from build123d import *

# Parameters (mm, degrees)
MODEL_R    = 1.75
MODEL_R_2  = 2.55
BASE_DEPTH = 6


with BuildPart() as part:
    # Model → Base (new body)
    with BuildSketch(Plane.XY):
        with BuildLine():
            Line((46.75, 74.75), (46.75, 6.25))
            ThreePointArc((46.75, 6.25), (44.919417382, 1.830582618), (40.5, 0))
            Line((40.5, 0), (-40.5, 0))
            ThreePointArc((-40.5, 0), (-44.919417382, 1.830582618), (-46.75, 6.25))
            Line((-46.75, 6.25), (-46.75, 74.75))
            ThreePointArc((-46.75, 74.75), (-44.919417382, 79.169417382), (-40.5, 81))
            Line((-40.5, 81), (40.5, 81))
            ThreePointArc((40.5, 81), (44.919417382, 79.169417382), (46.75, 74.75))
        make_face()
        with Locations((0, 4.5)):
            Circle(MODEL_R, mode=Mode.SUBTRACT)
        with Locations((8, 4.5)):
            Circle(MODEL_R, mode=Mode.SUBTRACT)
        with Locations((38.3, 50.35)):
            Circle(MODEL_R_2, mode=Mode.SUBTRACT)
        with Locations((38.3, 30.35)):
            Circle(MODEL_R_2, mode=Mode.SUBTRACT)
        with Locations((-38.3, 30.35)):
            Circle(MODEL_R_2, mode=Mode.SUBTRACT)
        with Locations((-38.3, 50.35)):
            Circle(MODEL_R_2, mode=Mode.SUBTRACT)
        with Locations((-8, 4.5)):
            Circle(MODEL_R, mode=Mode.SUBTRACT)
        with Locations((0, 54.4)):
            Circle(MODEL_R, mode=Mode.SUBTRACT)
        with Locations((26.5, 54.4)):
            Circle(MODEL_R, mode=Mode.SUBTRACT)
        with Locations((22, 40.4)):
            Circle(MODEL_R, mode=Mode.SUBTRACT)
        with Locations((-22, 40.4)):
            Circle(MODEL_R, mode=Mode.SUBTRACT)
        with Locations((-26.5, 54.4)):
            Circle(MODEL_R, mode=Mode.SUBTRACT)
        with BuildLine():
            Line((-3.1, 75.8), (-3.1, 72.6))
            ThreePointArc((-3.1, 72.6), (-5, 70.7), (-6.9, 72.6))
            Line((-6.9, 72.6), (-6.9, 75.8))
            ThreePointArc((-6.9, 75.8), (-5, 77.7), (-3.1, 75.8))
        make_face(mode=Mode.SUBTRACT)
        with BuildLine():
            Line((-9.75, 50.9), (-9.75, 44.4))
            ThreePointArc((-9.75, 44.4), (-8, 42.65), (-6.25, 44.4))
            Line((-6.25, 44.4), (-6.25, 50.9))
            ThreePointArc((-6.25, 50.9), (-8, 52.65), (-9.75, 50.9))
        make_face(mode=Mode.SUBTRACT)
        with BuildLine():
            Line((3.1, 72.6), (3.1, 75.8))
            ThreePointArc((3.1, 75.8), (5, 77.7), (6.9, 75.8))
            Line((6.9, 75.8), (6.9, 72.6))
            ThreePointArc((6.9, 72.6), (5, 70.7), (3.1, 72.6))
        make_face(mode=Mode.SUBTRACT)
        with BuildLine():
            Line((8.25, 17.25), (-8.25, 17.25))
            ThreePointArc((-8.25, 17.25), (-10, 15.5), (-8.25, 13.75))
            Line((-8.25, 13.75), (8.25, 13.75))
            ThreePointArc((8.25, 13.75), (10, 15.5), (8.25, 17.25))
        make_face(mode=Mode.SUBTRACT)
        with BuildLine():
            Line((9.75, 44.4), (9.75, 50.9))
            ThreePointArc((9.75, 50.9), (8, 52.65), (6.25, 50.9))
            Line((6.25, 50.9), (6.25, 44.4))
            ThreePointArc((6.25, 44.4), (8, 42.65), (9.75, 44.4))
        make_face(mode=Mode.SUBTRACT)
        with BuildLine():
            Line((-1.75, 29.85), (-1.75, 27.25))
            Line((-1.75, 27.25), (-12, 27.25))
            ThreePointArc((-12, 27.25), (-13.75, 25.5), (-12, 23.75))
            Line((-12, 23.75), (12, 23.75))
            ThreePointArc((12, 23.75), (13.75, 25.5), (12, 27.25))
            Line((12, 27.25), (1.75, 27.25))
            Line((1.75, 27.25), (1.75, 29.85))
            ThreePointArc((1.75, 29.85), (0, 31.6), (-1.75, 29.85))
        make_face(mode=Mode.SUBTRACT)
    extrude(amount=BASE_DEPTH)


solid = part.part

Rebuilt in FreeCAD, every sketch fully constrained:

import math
import FreeCAD as App
import Part
import Sketcher
Q = App.Units.Quantity

doc = App.newDocument("Part")
body = doc.addObject("PartDesign::Body", "Body")

# Sketch on XY plane
sketch1 = body.newObject("Sketcher::SketchObject", "Sketch")
sketch1.AttachmentSupport = (doc.getObject("XY_Plane"), [""])
sketch1.MapMode = "FlatFace"
sketch1.addGeometry([
    Part.LineSegment(App.Vector(46.8, 6.2, 0), App.Vector(46.8, 74.8, 0)),  # 0
    Part.ArcOfCircle(Part.Circle(App.Vector(40.5, 74.7, 0), App.Vector(0, 0, 1), 6.3), math.radians(0), math.radians(90)),  # 1
    Part.LineSegment(App.Vector(40.5, 81, 0), App.Vector(-40.5, 81, 0)),  # 2
    Part.ArcOfCircle(Part.Circle(App.Vector(-40.5, 74.7, 0), App.Vector(0, 0, 1), 6.3), math.radians(90), math.radians(180)),  # 3
    Part.LineSegment(App.Vector(-46.8, 74.8, 0), App.Vector(-46.8, 6.2, 0)),  # 4
    Part.ArcOfCircle(Part.Circle(App.Vector(-40.5, 6.3, 0), App.Vector(0, 0, 1), 6.3), math.radians(-180), math.radians(-90)),  # 5
    Part.LineSegment(App.Vector(-40.5, 0, 0), App.Vector(40.5, 0, 0)),  # 6
    Part.ArcOfCircle(Part.Circle(App.Vector(40.5, 6.3, 0), App.Vector(0, 0, 1), 6.3), math.radians(-90), math.radians(0)),  # 7
    Part.Circle(App.Vector(8, 4.5, 0), App.Vector(0, 0, 1), 1.8),  # 8
    Part.Circle(App.Vector(38.3, 30.4, 0), App.Vector(0, 0, 1), 2.5),  # 9
    Part.Circle(App.Vector(0, 4.5, 0), App.Vector(0, 0, 1), 1.8),  # 10
    Part.Circle(App.Vector(-8, 4.5, 0), App.Vector(0, 0, 1), 1.8),  # 11
    Part.ArcOfCircle(Part.Circle(App.Vector(8.2, 15.5, 0), App.Vector(0, 0, 1), 1.8), math.radians(-90), math.radians(90)),  # 12
    Part.LineSegment(App.Vector(8.2, 13.8, 0), App.Vector(-8.2, 13.8, 0)),  # 13
    Part.ArcOfCircle(Part.Circle(App.Vector(-8.2, 15.5, 0), App.Vector(0, 0, 1), 1.8), math.radians(90), math.radians(270)),  # 14
    Part.LineSegment(App.Vector(-8.2, 17.2, 0), App.Vector(8.2, 17.2, 0)),  # 15
    Part.ArcOfCircle(Part.Circle(App.Vector(0, 29.9, 0), App.Vector(0, 0, 1), 1.8), math.radians(0), math.radians(180)),  # 16
    Part.LineSegment(App.Vector(1.8, 29.9, 0), App.Vector(1.8, 27.2, 0)),  # 17
    Part.LineSegment(App.Vector(1.8, 27.2, 0), App.Vector(12, 27.2, 0)),  # 18
    Part.ArcOfCircle(Part.Circle(App.Vector(12, 25.5, 0), App.Vector(0, 0, 1), 1.8), math.radians(-90), math.radians(90)),  # 19
    Part.LineSegment(App.Vector(12, 23.8, 0), App.Vector(-12, 23.8, 0)),  # 20
    Part.ArcOfCircle(Part.Circle(App.Vector(-12, 25.5, 0), App.Vector(0, 0, 1), 1.8), math.radians(90), math.radians(270)),  # 21
    Part.LineSegment(App.Vector(-12, 27.2, 0), App.Vector(-1.8, 27.2, 0)),  # 22
    Part.LineSegment(App.Vector(-1.8, 27.2, 0), App.Vector(-1.8, 29.9, 0)),  # 23
    Part.Circle(App.Vector(-38.3, 30.4, 0), App.Vector(0, 0, 1), 2.5),  # 24
    Part.Circle(App.Vector(22, 40.4, 0), App.Vector(0, 0, 1), 1.8),  # 25
    Part.Circle(App.Vector(38.3, 50.4, 0), App.Vector(0, 0, 1), 2.5),  # 26
    Part.Circle(App.Vector(26.5, 54.4, 0), App.Vector(0, 0, 1), 1.8),  # 27
    Part.ArcOfCircle(Part.Circle(App.Vector(8, 44.4, 0), App.Vector(0, 0, 1), 1.8), math.radians(180), math.radians(360)),  # 28
    Part.LineSegment(App.Vector(6.2, 44.4, 0), App.Vector(6.2, 50.9, 0)),  # 29
    Part.ArcOfCircle(Part.Circle(App.Vector(8, 50.9, 0), App.Vector(0, 0, 1), 1.8), math.radians(0), math.radians(180)),  # 30
    Part.LineSegment(App.Vector(9.8, 50.9, 0), App.Vector(9.8, 44.4, 0)),  # 31
    Part.LineSegment(App.Vector(3.1, 72.6, 0), App.Vector(3.1, 75.8, 0)),  # 32
    Part.ArcOfCircle(Part.Circle(App.Vector(5, 75.8, 0), App.Vector(0, 0, 1), 1.9), math.radians(0), math.radians(180)),  # 33
    Part.LineSegment(App.Vector(6.9, 75.8, 0), App.Vector(6.9, 72.6, 0)),  # 34
    Part.ArcOfCircle(Part.Circle(App.Vector(5, 72.6, 0), App.Vector(0, 0, 1), 1.9), math.radians(180), math.radians(360)),  # 35
    Part.ArcOfCircle(Part.Circle(App.Vector(-8, 50.9, 0), App.Vector(0, 0, 1), 1.8), math.radians(0), math.radians(180)),  # 36
    Part.LineSegment(App.Vector(-6.2, 50.9, 0), App.Vector(-6.2, 44.4, 0)),  # 37
    Part.ArcOfCircle(Part.Circle(App.Vector(-8, 44.4, 0), App.Vector(0, 0, 1), 1.8), math.radians(180), math.radians(360)),  # 38
    Part.LineSegment(App.Vector(-9.8, 44.4, 0), App.Vector(-9.8, 50.9, 0)),  # 39
    Part.Circle(App.Vector(0, 54.4, 0), App.Vector(0, 0, 1), 1.8),  # 40
    Part.Circle(App.Vector(-22, 40.4, 0), App.Vector(0, 0, 1), 1.8),  # 41
    Part.Circle(App.Vector(-26.5, 54.4, 0), App.Vector(0, 0, 1), 1.8),  # 42
    Part.Circle(App.Vector(-38.3, 50.4, 0), App.Vector(0, 0, 1), 2.5),  # 43
    Part.LineSegment(App.Vector(-3.1, 75.8, 0), App.Vector(-3.1, 72.6, 0)),  # 44
    Part.ArcOfCircle(Part.Circle(App.Vector(-5, 72.6, 0), App.Vector(0, 0, 1), 1.9), math.radians(180), math.radians(360)),  # 45
    Part.LineSegment(App.Vector(-6.9, 72.6, 0), App.Vector(-6.9, 75.8, 0)),  # 46
    Part.ArcOfCircle(Part.Circle(App.Vector(-5, 75.8, 0), App.Vector(0, 0, 1), 1.9), math.radians(0), math.radians(180)),  # 47
], False)
sketch1.addConstraint([
    Sketcher.Constraint("Tangent", 0, 2, 1, 1),
    Sketcher.Constraint("Tangent", 1, 2, 2, 1),
    Sketcher.Constraint("Tangent", 2, 2, 3, 1),
    Sketcher.Constraint("Tangent", 3, 2, 4, 1),
    Sketcher.Constraint("Tangent", 4, 2, 5, 1),
    Sketcher.Constraint("Tangent", 5, 2, 6, 1),
    Sketcher.Constraint("Tangent", 6, 2, 7, 1),
    Sketcher.Constraint("Tangent", 7, 2, 0, 1),
    Sketcher.Constraint("Tangent", 12, 1, 13, 1),
    Sketcher.Constraint("Tangent", 13, 2, 14, 2),
    Sketcher.Constraint("Tangent", 14, 1, 15, 1),
    Sketcher.Constraint("Tangent", 15, 2, 12, 2),
    Sketcher.Constraint("Tangent", 16, 1, 17, 1),
    Sketcher.Constraint("Coincident", 17, 2, 18, 1),
    Sketcher.Constraint("Tangent", 18, 2, 19, 2),
    Sketcher.Constraint("Tangent", 19, 1, 20, 1),
    Sketcher.Constraint("Tangent", 20, 2, 21, 2),
    Sketcher.Constraint("Tangent", 21, 1, 22, 1),
    Sketcher.Constraint("Coincident", 22, 2, 23, 1),
    Sketcher.Constraint("Tangent", 23, 2, 16, 2),
    Sketcher.Constraint("Tangent", 28, 1, 29, 1),
    Sketcher.Constraint("Tangent", 29, 2, 30, 2),
    Sketcher.Constraint("Tangent", 30, 1, 31, 1),
    Sketcher.Constraint("Tangent", 31, 2, 28, 2),
    Sketcher.Constraint("Tangent", 32, 2, 33, 2),
    Sketcher.Constraint("Tangent", 33, 1, 34, 1),
    Sketcher.Constraint("Tangent", 34, 2, 35, 2),
    Sketcher.Constraint("Tangent", 35, 1, 32, 1),
    Sketcher.Constraint("Tangent", 36, 1, 37, 1),
    Sketcher.Constraint("Tangent", 37, 2, 38, 2),
    Sketcher.Constraint("Tangent", 38, 1, 39, 1),
    Sketcher.Constraint("Tangent", 39, 2, 36, 2),
    Sketcher.Constraint("Tangent", 44, 2, 45, 2),
    Sketcher.Constraint("Tangent", 45, 1, 46, 1),
    Sketcher.Constraint("Tangent", 46, 2, 47, 2),
    Sketcher.Constraint("Tangent", 47, 1, 44, 1),
    Sketcher.Constraint("Vertical", 0),
    Sketcher.Constraint("Horizontal", 2),
    Sketcher.Constraint("Vertical", 4),
    Sketcher.Constraint("Horizontal", 6),
    Sketcher.Constraint("Horizontal", 13),
    Sketcher.Constraint("Horizontal", 15),
    Sketcher.Constraint("Vertical", 17),
    Sketcher.Constraint("Horizontal", 18),
    Sketcher.Constraint("Horizontal", 20),
    Sketcher.Constraint("Horizontal", 22),
    Sketcher.Constraint("Vertical", 23),
    Sketcher.Constraint("Vertical", 29),
    Sketcher.Constraint("Vertical", 31),
    Sketcher.Constraint("Vertical", 32),
    Sketcher.Constraint("Vertical", 34),
    Sketcher.Constraint("Vertical", 37),
    Sketcher.Constraint("Vertical", 39),
    Sketcher.Constraint("Vertical", 44),
    Sketcher.Constraint("Vertical", 46),
    Sketcher.Constraint("Equal", 1, 3),
    Sketcher.Constraint("Equal", 3, 5),
    Sketcher.Constraint("Equal", 5, 7),
    Sketcher.Constraint("Equal", 8, 10),
    Sketcher.Constraint("Equal", 10, 11),
    Sketcher.Constraint("Equal", 11, 12),
    Sketcher.Constraint("Equal", 14, 16),
    Sketcher.Constraint("Equal", 16, 19),
    Sketcher.Constraint("Equal", 19, 21),
    Sketcher.Constraint("Equal", 9, 24),
    Sketcher.Constraint("Equal", 21, 25),
    Sketcher.Constraint("Equal", 24, 26),
    Sketcher.Constraint("Equal", 25, 27),
    Sketcher.Constraint("Equal", 27, 28),
    Sketcher.Constraint("Equal", 30, 36),
    Sketcher.Constraint("Equal", 38, 40),
    Sketcher.Constraint("Equal", 40, 41),
    Sketcher.Constraint("Equal", 41, 42),
    Sketcher.Constraint("Equal", 26, 43),
    Sketcher.Constraint("Equal", 35, 45),
    Sketcher.Constraint("Symmetric", 5, 2, 6, 2, -1, 1),
    Sketcher.Constraint("Symmetric", 8, 3, 11, 3, -2),
    Sketcher.Constraint("Symmetric", 9, 3, 24, 3, -2),
    Sketcher.Constraint("Symmetric", 30, 3, 36, 3, -2),
    Sketcher.Constraint("Symmetric", 25, 3, 41, 3, -2),
    Sketcher.Constraint("Symmetric", 27, 3, 42, 3, -2),
    Sketcher.Constraint("Symmetric", 26, 3, 43, 3, -2),
    Sketcher.Constraint("Symmetric", 35, 3, 45, 3, -2),
    Sketcher.Constraint("PointOnObject", 10, 3, -2),
    Sketcher.Constraint("PointOnObject", 16, 3, -2),
    Sketcher.Constraint("PointOnObject", 40, 3, -2),
    Sketcher.Constraint("Horizontal", 8, 3, 10, 3),
    Sketcher.Constraint("Horizontal", 28, 3, 38, 3),
    Sketcher.Constraint("Horizontal", 27, 3, 40, 3),
    Sketcher.Constraint("Horizontal", 33, 3, 47, 3),
    Sketcher.Constraint("Vertical", 9, 3, 26, 3),
    Sketcher.Constraint("Vertical", 8, 3, 28, 3),
    Sketcher.Constraint("Equal", 18, 22),
    Sketcher.Constraint("Diameter", 8, Q("3.5 mm")),
    Sketcher.Constraint("Diameter", 9, Q("5.1 mm")),
    Sketcher.Constraint("Radius", 33, Q("1.9 mm")),
    Sketcher.Constraint("DistanceX", 2, 2, 2, 1, Q("81 mm")),
    Sketcher.Constraint("DistanceX", 20, 2, 20, 1, Q("24 mm")),
    Sketcher.Constraint("Radius", 1, Q("6.25 mm")),
    Sketcher.Constraint("DistanceX", 13, 2, 13, 1, Q("16.5 mm")),
    Sketcher.Constraint("DistanceY", 0, 1, 0, 2, Q("68.5 mm")),
    Sketcher.Constraint("DistanceY", 17, 2, 17, 1, Q("2.6 mm")),
    Sketcher.Constraint("DistanceY", 29, 1, 29, 2, Q("6.5 mm")),
    Sketcher.Constraint("DistanceY", 32, 1, 32, 2, Q("3.2 mm")),
    Sketcher.Constraint("DistanceX", -1, 1, 8, 3, Q("8 mm")),
    Sketcher.Constraint("DistanceX", -1, 1, 25, 3, Q("22 mm")),
    Sketcher.Constraint("DistanceX", -1, 1, 33, 3, Q("5 mm")),
    Sketcher.Constraint("DistanceY", -1, 1, 8, 3, Q("4.5 mm")),
    Sketcher.Constraint("DistanceX", -1, 1, 9, 3, Q("38.3 mm")),
    Sketcher.Constraint("DistanceY", -1, 1, 12, 3, Q("15.5 mm")),
    Sketcher.Constraint("DistanceY", -1, 1, 19, 3, Q("25.5 mm")),
    Sketcher.Constraint("DistanceY", -1, 1, 25, 3, Q("40.4 mm")),
    Sketcher.Constraint("DistanceX", -1, 1, 27, 3, Q("26.5 mm")),
    Sketcher.Constraint("DistanceY", -1, 1, 27, 3, Q("54.4 mm")),
    Sketcher.Constraint("DistanceY", -1, 1, 28, 3, Q("44.4 mm")),
    Sketcher.Constraint("DistanceY", -1, 1, 33, 3, Q("75.8 mm")),
    Sketcher.Constraint("DistanceY", -1, 1, 9, 3, Q("30.35 mm")),
    Sketcher.Constraint("DistanceX", -1, 1, 12, 3, Q("8.25 mm")),
    Sketcher.Constraint("DistanceY", -1, 1, 26, 3, Q("50.35 mm")),
])
pad1 = body.newObject("PartDesign::Pad", "Pad")
pad1.Profile = sketch1
pad1.Length = 6

doc.recompute()
